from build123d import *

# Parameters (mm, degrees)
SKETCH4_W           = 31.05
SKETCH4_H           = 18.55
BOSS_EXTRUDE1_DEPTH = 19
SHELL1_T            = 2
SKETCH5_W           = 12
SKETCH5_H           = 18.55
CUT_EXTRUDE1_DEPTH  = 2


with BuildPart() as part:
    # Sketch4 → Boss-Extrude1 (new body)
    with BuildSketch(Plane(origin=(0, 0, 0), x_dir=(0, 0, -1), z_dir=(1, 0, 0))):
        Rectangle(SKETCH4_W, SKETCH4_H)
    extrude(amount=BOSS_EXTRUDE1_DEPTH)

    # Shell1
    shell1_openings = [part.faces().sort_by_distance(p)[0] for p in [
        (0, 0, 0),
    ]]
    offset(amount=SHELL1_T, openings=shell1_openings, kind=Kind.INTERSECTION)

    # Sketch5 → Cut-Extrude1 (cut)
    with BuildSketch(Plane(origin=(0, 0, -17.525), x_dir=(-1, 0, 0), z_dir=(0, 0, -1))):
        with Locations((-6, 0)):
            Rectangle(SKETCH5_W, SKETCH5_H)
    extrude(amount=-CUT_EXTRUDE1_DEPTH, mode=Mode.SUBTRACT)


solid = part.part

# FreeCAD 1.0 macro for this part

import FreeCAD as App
import Part
import Sketcher
from FreeCAD import Vector


def faces_at(feature, points):
    """Names of the faces that lie closest to the given points."""
    faces = feature.Shape.Faces
    near = lambda p: min(range(len(faces)), key=lambda i: faces[i].distToShape(Part.Vertex(*p))[0])
    return sorted({f"Face{near(p) + 1}" for p in points})


def add_polygon(sketch, points):
    """Adds a closed chain of lines whose ends are joined by coincident constraints."""
    first, n = sketch.GeometryCount, len(points)
    for a, b in zip(points, points[1:] + points[:1]):
        sketch.addGeometry(Part.LineSegment(App.Vector(*a, 0), App.Vector(*b, 0)), False)
    for i in range(n):
        sketch.addConstraint(Sketcher.Constraint("Coincident", first + i, 2, first + (i + 1) % n, 1))

doc = App.newDocument("Part")
params = doc.addObject("Spreadsheet::Sheet", "Params")
for row, (alias, value) in enumerate([
    ("sketch1_width", "18.55 mm"),
    ("sketch1_height", "31.05 mm"),
    ("pad1_length", "19 mm"),
    ("thickness_wall", "2 mm"),
    ("sketch2_width", "12 mm"),
    ("sketch2_height", "18.55 mm"),
    ("pocket1_length", "2 mm"),
], start=1):
    params.set(f"A{row}", alias)
    params.set(f"B{row}", "=" + value)
    params.setAlias(f"B{row}", alias)

body = doc.addObject("PartDesign::Body", "Body")

# Sketch on YZ plane
sketch1 = body.newObject("Sketcher::SketchObject", "Sketch")
sketch1.AttachmentSupport = (doc.getObject("YZ_Plane"), [""])
sketch1.MapMode = "FlatFace"
add_polygon(sketch1, [(9.275, 15.525), (-9.275, 15.525), (-9.275, -15.525), (9.275, -15.525)])  # lines 0-3
sketch1.addConstraint([
    Sketcher.Constraint("Horizontal", 0),
    Sketcher.Constraint("Vertical", 1),
    Sketcher.Constraint("Horizontal", 2),
    Sketcher.Constraint("Vertical", 3),
    Sketcher.Constraint("Symmetric", 0, 2, 2, 2, -1, 1),
    Sketcher.Constraint("DistanceX", 0, 2, 0, 1, 18.55),
    Sketcher.Constraint("DistanceY", 1, 2, 1, 1, 31.05),
])
sketch1.setExpression("Constraints[9]", "Params.sketch1_width")
sketch1.setExpression("Constraints[10]", "Params.sketch1_height")
pad1 = body.newObject("PartDesign::Pad", "Pad")
pad1.Profile = sketch1
pad1.setExpression("Length", "Params.pad1_length")
doc.recompute()

thickness = body.newObject("PartDesign::Thickness", "Thickness")
thickness.Base = (pad1, faces_at(pad1, [(0, 0, 0)]))
thickness.setExpression("Value", "Params.thickness_wall")
thickness.Reversed = False
thickness.Join = "Intersection"

# Sketch on XY plane
sketch2 = body.newObject("Sketcher::SketchObject", "Sketch001")
sketch2.AttachmentSupport = (doc.getObject("XY_Plane"), [""])
sketch2.MapMode = "FlatFace"
sketch2.AttachmentOffset = App.Placement(Vector(0, 0, -17.525), App.Rotation())
add_polygon(sketch2, [(12, 9.275), (12, -9.275), (0, -9.275), (0, 9.275)])  # lines 0-3
sketch2.addConstraint([
    Sketcher.Constraint("Vertical", 0),
    Sketcher.Constraint("Horizontal", 1),
    Sketcher.Constraint("Vertical", 2),
    Sketcher.Constraint("Horizontal", 3),
    Sketcher.Constraint("Symmetric", 1, 2, 2, 2, -1, 1),
    Sketcher.Constraint("DistanceX", 1, 2, 1, 1, 12.0),
    Sketcher.Constraint("DistanceY", 0, 2, 0, 1, 18.55),
])
sketch2.setExpression("Constraints[9]", "Params.sketch2_width")
sketch2.setExpression("Constraints[10]", "Params.sketch2_height")
pocket1 = body.newObject("PartDesign::Pocket", "Pocket")
pocket1.Profile = sketch2
pocket1.setExpression("Length", "Params.pocket1_length")
pocket1.Reversed = True

doc.recompute()
